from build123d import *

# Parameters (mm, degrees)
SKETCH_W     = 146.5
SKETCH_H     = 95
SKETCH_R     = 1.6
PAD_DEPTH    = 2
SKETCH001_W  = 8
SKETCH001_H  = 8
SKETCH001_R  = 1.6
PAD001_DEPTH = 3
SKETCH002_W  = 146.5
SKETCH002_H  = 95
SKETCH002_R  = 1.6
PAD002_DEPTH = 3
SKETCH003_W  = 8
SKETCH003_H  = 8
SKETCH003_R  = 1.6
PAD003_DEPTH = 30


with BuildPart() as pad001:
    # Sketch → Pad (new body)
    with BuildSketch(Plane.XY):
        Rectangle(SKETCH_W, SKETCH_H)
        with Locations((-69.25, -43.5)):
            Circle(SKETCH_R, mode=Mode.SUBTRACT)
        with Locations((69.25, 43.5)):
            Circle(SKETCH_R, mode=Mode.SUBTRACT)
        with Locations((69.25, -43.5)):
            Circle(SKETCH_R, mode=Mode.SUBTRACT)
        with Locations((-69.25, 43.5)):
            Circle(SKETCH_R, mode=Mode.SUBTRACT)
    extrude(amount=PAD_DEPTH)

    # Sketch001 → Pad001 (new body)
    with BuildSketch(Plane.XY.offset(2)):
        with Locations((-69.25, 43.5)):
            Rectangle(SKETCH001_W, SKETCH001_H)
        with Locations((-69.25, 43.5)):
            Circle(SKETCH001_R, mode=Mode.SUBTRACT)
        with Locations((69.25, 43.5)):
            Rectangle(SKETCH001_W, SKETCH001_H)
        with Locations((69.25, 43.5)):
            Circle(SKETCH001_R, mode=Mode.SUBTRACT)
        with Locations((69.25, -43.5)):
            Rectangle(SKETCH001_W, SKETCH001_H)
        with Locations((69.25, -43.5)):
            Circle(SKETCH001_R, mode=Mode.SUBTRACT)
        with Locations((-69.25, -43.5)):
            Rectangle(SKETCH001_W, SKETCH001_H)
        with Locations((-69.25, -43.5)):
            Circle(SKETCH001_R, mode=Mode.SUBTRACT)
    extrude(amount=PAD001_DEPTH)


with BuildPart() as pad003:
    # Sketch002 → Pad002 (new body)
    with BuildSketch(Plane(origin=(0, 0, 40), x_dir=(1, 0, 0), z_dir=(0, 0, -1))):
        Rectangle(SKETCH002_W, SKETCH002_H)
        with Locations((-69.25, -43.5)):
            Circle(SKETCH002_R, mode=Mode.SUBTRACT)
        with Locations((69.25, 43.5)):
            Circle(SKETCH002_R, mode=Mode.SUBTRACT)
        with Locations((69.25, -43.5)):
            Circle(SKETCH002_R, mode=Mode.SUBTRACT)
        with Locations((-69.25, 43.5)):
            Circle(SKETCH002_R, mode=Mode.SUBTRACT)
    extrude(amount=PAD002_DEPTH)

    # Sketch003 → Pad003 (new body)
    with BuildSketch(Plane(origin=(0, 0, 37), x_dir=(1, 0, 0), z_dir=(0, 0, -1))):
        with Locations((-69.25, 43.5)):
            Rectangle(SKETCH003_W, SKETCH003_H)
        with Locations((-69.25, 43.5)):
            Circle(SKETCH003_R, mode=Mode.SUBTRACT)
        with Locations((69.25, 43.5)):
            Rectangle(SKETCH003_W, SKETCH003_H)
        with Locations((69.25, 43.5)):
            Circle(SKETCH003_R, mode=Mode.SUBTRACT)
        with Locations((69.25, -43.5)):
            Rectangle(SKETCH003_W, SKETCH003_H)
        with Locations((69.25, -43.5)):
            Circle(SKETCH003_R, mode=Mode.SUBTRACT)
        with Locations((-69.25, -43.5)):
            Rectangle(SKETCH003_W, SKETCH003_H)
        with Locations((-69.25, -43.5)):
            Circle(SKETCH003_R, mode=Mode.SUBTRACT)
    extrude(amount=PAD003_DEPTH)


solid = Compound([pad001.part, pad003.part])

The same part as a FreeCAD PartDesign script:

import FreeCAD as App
import Part
import Sketcher

V = App.Vector
Q = App.Units.Quantity

doc = App.newDocument("Part")
body = doc.addObject("PartDesign::Body", "Body")

# Sketch on XY plane
sketch1 = body.newObject("Sketcher::SketchObject", "Sketch")
sketch1.AttachmentSupport = (doc.getObject("XY_Plane"), [""])
sketch1.MapMode = "FlatFace"
sketch1.addGeometry(Part.LineSegment(V(-73.25, 47.5, 0), V(-73.25, -47.5, 0)), False)
sketch1.addGeometry(Part.LineSegment(V(-73.25, -47.5, 0), V(73.25, -47.5, 0)), False)
sketch1.addGeometry(Part.LineSegment(V(73.25, -47.5, 0), V(73.25, 47.5, 0)), False)
sketch1.addGeometry(Part.LineSegment(V(73.25, 47.5, 0), V(-73.25, 47.5, 0)), False)
sketch1.addGeometry(Part.Circle(V(-69.25, -43.5, 0), V(0, 0, 1), 1.6), False)
sketch1.addGeometry(Part.Circle(V(69.25, -43.5, 0), V(0, 0, 1), 1.6), False)
sketch1.addGeometry(Part.Circle(V(-69.25, 43.5, 0), V(0, 0, 1), 1.6), False)
sketch1.addGeometry(Part.Circle(V(69.25, 43.5, 0), V(0, 0, 1), 1.6), False)
sketch1.addConstraint(Sketcher.Constraint("Coincident", 0, 2, 1, 1))
sketch1.addConstraint(Sketcher.Constraint("Coincident", 1, 2, 2, 1))
sketch1.addConstraint(Sketcher.Constraint("Coincident", 2, 2, 3, 1))
sketch1.addConstraint(Sketcher.Constraint("Coincident", 3, 2, 0, 1))
sketch1.addConstraint(Sketcher.Constraint("Vertical", 0))
sketch1.addConstraint(Sketcher.Constraint("Horizontal", 1))
sketch1.addConstraint(Sketcher.Constraint("Vertical", 2))
sketch1.addConstraint(Sketcher.Constraint("Horizontal", 3))
sketch1.addConstraint(Sketcher.Constraint("Equal", 4, 5))
sketch1.addConstraint(Sketcher.Constraint("Equal", 5, 6))
sketch1.addConstraint(Sketcher.Constraint("Equal", 6, 7))
sketch1.addConstraint(Sketcher.Constraint("Symmetric", 5, 3, 6, 3, -1, 1))
sketch1.addConstraint(Sketcher.Constraint("Symmetric", 4, 3, 7, 3, -1, 1))
sketch1.addConstraint(Sketcher.Constraint("Symmetric", 0, 2, 2, 2, -1, 1))
sketch1.addConstraint(Sketcher.Constraint("Symmetric", 4, 3, 5, 3, -2))
sketch1.addConstraint(Sketcher.Constraint("Diameter", 4, Q("3.2 mm")))
sketch1.addConstraint(Sketcher.Constraint("DistanceY", 0, 2, 0, 1, Q("95 mm")))
sketch1.addConstraint(Sketcher.Constraint("DistanceX", 1, 1, 1, 2, Q("146.5 mm")))
sketch1.addConstraint(Sketcher.Constraint("DistanceY", 4, 3, 6, 3, Q("87 mm")))
sketch1.addConstraint(Sketcher.Constraint("DistanceX", 0, 2, 4, 3, Q("4 mm")))
pad1 = body.newObject("PartDesign::Pad", "Pad")
pad1.Profile = sketch1
pad1.Length = 2

# Sketch on XY plane
sketch2 = body.newObject("Sketcher::SketchObject", "Sketch001")
sketch2.AttachmentSupport = (doc.getObject("XY_Plane"), [""])
sketch2.MapMode = "FlatFace"
sketch2.AttachmentOffset = App.Placement(V(0, 0, 2), App.Rotation())
sketch2.addGeometry(Part.LineSegment(V(-73.25, 47.5, 0), V(-73.25, 39.5, 0)), False)
sketch2.addGeometry(Part.LineSegment(V(-73.25, 39.5, 0), V(-65.25, 39.5, 0)), False)
sketch2.addGeometry(Part.LineSegment(V(-65.25, 39.5, 0), V(-65.25, 47.5, 0)), False)
sketch2.addGeometry(Part.LineSegment(V(-65.25, 47.5, 0), V(-73.25, 47.5, 0)), False)
sketch2.addGeometry(Part.Circle(V(-69.25, 43.5, 0), V(0, 0, 1), 1.6), False)
sketch2.addGeometry(Part.LineSegment(V(65.25, 47.5, 0), V(65.25, 39.5, 0)), False)
sketch2.addGeometry(Part.LineSegment(V(65.25, 39.5, 0), V(73.25, 39.5, 0)), False)
sketch2.addGeometry(Part.LineSegment(V(73.25, 39.5, 0), V(73.25, 47.5, 0)), False)
sketch2.addGeometry(Part.LineSegment(V(73.25, 47.5, 0), V(65.25, 47.5, 0)), False)
sketch2.addGeometry(Part.Circle(V(69.25, 43.5, 0), V(0, 0, 1), 1.6), False)
sketch2.addGeometry(Part.LineSegment(V(65.25, -39.5, 0), V(65.25, -47.5, 0)), False)
sketch2.addGeometry(Part.LineSegment(V(65.25, -47.5, 0), V(73.25, -47.5, 0)), False)
sketch2.addGeometry(Part.LineSegment(V(73.25, -47.5, 0), V(73.25, -39.5, 0)), False)
sketch2.addGeometry(Part.LineSegment(V(73.25, -39.5, 0), V(65.25, -39.5, 0)), False)
sketch2.addGeometry(Part.Circle(V(69.25, -43.5, 0), V(0, 0, 1), 1.6), False)
sketch2.addGeometry(Part.LineSegment(V(-73.25, -39.5, 0), V(-73.25, -47.5, 0)), False)
sketch2.addGeometry(Part.LineSegment(V(-73.25, -47.5, 0), V(-65.25, -47.5, 0)), False)
sketch2.addGeometry(Part.LineSegment(V(-65.25, -47.5, 0), V(-65.25, -39.5, 0)), False)
sketch2.addGeometry(Part.LineSegment(V(-65.25, -39.5, 0), V(-73.25, -39.5, 0)), False)
sketch2.addGeometry(Part.Circle(V(-69.25, -43.5, 0), V(0, 0, 1), 1.6), False)
sketch2.addConstraint(Sketcher.Constraint("Coincident", 0, 2, 1, 1))
sketch2.addConstraint(Sketcher.Constraint("Coincident", 1, 2, 2, 1))
sketch2.addConstraint(Sketcher.Constraint("Coincident", 2, 2, 3, 1))
sketch2.addConstraint(Sketcher.Constraint("Coincident", 3, 2, 0, 1))
sketch2.addConstraint(Sketcher.Constraint("Coincident", 5, 2, 6, 1))
sketch2.addConstraint(Sketcher.Constraint("Coincident", 6, 2, 7, 1))
sketch2.addConstraint(Sketcher.Constraint("Coincident", 7, 2, 8, 1))
sketch2.addConstraint(Sketcher.Constraint("Coincident", 8, 2, 5, 1))
sketch2.addConstraint(Sketcher.Constraint("Coincident", 10, 2, 11, 1))
sketch2.addConstraint(Sketcher.Constraint("Coincident", 11, 2, 12, 1))
sketch2.addConstraint(Sketcher.Constraint("Coincident", 12, 2, 13, 1))
sketch2.addConstraint(Sketcher.Constraint("Coincident", 13, 2, 10, 1))
sketch2.addConstraint(Sketcher.Constraint("Coincident", 15, 2, 16, 1))
sketch2.addConstraint(Sketcher.Constraint("Coincident", 16, 2, 17, 1))
sketch2.addConstraint(Sketcher.Constraint("Coincident", 17, 2, 18, 1))
sketch2.addConstraint(Sketcher.Constraint("Coincident", 18, 2, 15, 1))
sketch2.addConstraint(Sketcher.Constraint("Vertical", 0))
sketch2.addConstraint(Sketcher.Constraint("Horizontal", 1))
sketch2.addConstraint(Sketcher.Constraint("Vertical", 2))
sketch2.addConstraint(Sketcher.Constraint("Horizontal", 3))
sketch2.addConstraint(Sketcher.Constraint("Vertical", 5))
sketch2.addConstraint(Sketcher.Constraint("Horizontal", 6))
sketch2.addConstraint(Sketcher.Constraint("Vertical", 7))
sketch2.addConstraint(Sketcher.Constraint("Horizontal", 8))
sketch2.addConstraint(Sketcher.Constraint("Vertical", 10))
sketch2.addConstraint(Sketcher.Constraint("Horizontal", 11))
sketch2.addConstraint(Sketcher.Constraint("Vertical", 12))
sketch2.addConstraint(Sketcher.Constraint("Horizontal", 13))
sketch2.addConstraint(Sketcher.Constraint("Vertical", 15))
sketch2.addConstraint(Sketcher.Constraint("Horizontal", 16))
sketch2.addConstraint(Sketcher.Constraint("Vertical", 17))
sketch2.addConstraint(Sketcher.Constraint("Horizontal", 18))
sketch2.addConstraint(Sketcher.Constraint("Equal", 4, 9))
sketch2.addConstraint(Sketcher.Constraint("Equal", 9, 14))
sketch2.addConstraint(Sketcher.Constraint("Equal", 14, 19))
sketch2.addConstraint(Sketcher.Constraint("Symmetric", 4, 3, 14, 3, -1, 1))
sketch2.addConstraint(Sketcher.Constraint("Symmetric", 9, 3, 19, 3, -1, 1))
sketch2.addConstraint(Sketcher.Constraint("Symmetric", 2, 2, 10, 2, -1, 1))
sketch2.addConstraint(Sketcher.Constraint("Symmetric", 0, 2, 12, 2, -1, 1))
sketch2.addConstraint(Sketcher.Constraint("Symmetric", 7, 2, 15, 2, -1, 1))
sketch2.addConstraint(Sketcher.Constraint("Symmetric", 5, 2, 17, 2, -1, 1))
sketch2.addConstraint(Sketcher.Constraint("Symmetric", 4, 3, 9, 3, -2))
sketch2.addConstraint(Sketcher.Constraint("Symmetric", 1, 2, 5, 2, -2))
sketch2.addConstraint(Sketcher.Constraint("Symmetric", 3, 2, 7, 2, -2))
sketch2.addConstraint(Sketcher.Constraint("Equal", 18, 0))
sketch2.addConstraint(Sketcher.Constraint("Diameter", 4, Q("3.2 mm")))
sketch2.addConstraint(Sketcher.Constraint("DistanceX", 1, 1, 1, 2, Q("8 mm")))
sketch2.addConstraint(Sketcher.Constraint("DistanceY", 14, 3, 9, 3, Q("87 mm")))
sketch2.addConstraint(Sketcher.Constraint("DistanceX", 0, 2, 4, 3, Q("4 mm")))
sketch2.addConstraint(Sketcher.Constraint("DistanceY", 0, 2, 4, 3, Q("4 mm")))
sketch2.addConstraint(Sketcher.Constraint("DistanceX", 4, 3, 9, 3, Q("138.5 mm")))
pad2 = body.newObject("PartDesign::Pad", "Pad001")
pad2.Profile = sketch2
pad2.Length = 3
body2 = doc.addObject("PartDesign::Body", "Body001")

# Sketch on XY plane
sketch3 = body2.newObject("Sketcher::SketchObject", "Sketch002")
sketch3.AttachmentSupport = (doc.getObject("XY_Plane001"), [""])
sketch3.MapMode = "FlatFace"
sketch3.AttachmentOffset = App.Placement(V(0, 0, 40), App.Rotation())
sketch3.addGeometry(Part.LineSegment(V(-73.25, -47.5, 0), V(-73.25, 47.5, 0)), False)
sketch3.addGeometry(Part.LineSegment(V(-73.25, 47.5, 0), V(73.25, 47.5, 0)), False)
sketch3.addGeometry(Part.LineSegment(V(73.25, 47.5, 0), V(73.25, -47.5, 0)), False)
sketch3.addGeometry(Part.LineSegment(V(73.25, -47.5, 0), V(-73.25, -47.5, 0)), False)
sketch3.addGeometry(Part.Circle(V(-69.25, 43.5, 0), V(0, 0, 1), 1.6), False)
sketch3.addGeometry(Part.Circle(V(69.25, 43.5, 0), V(0, 0, 1), 1.6), False)
sketch3.addGeometry(Part.Circle(V(-69.25, -43.5, 0), V(0, 0, 1), 1.6), False)
sketch3.addGeometry(Part.Circle(V(69.25, -43.5, 0), V(0, 0, 1), 1.6), False)
sketch3.addConstraint(Sketcher.Constraint("Coincident", 0, 2, 1, 1))
sketch3.addConstraint(Sketcher.Constraint("Coincident", 1, 2, 2, 1))
sketch3.addConstraint(Sketcher.Constraint("Coincident", 2, 2, 3, 1))
sketch3.addConstraint(Sketcher.Constraint("Coincident", 3, 2, 0, 1))
sketch3.addConstraint(Sketcher.Constraint("Vertical", 0))
sketch3.addConstraint(Sketcher.Constraint("Horizontal", 1))
sketch3.addConstraint(Sketcher.Constraint("Vertical", 2))
sketch3.addConstraint(Sketcher.Constraint("Horizontal", 3))
sketch3.addConstraint(Sketcher.Constraint("Equal", 4, 5))
sketch3.addConstraint(Sketcher.Constraint("Equal", 5, 6))
sketch3.addConstraint(Sketcher.Constraint("Equal", 6, 7))
sketch3.addConstraint(Sketcher.Constraint("Symmetric", 5, 3, 6, 3, -1, 1))
sketch3.addConstraint(Sketcher.Constraint("Symmetric", 4, 3, 7, 3, -1, 1))
sketch3.addConstraint(Sketcher.Constraint("Symmetric", 0, 2, 2, 2, -1, 1))
sketch3.addConstraint(Sketcher.Constraint("Symmetric", 4, 3, 5, 3, -2))
sketch3.addConstraint(Sketcher.Constraint("Diameter", 4, Q("3.2 mm")))
sketch3.addConstraint(Sketcher.Constraint("DistanceY", 0, 1, 0, 2, Q("95 mm")))
sketch3.addConstraint(Sketcher.Constraint("DistanceX", 1, 1, 1, 2, Q("146.5 mm")))
sketch3.addConstraint(Sketcher.Constraint("DistanceY", 6, 3, 4, 3, Q("87 mm")))
sketch3.addConstraint(Sketcher.Constraint("DistanceX", 0, 2, 4, 3, Q("4 mm")))
pad3 = body2.newObject("PartDesign::Pad", "Pad002")
pad3.Profile = sketch3
pad3.Length = 3
pad3.Reversed = True

# Sketch on XY plane
sketch4 = body2.newObject("Sketcher::SketchObject", "Sketch003")
sketch4.AttachmentSupport = (doc.getObject("XY_Plane001"), [""])
sketch4.MapMode = "FlatFace"
sketch4.AttachmentOffset = App.Placement(V(0, 0, 37), App.Rotation())
sketch4.addGeometry(Part.LineSegment(V(-73.25, -47.5, 0), V(-73.25, -39.5, 0)), False)
sketch4.addGeometry(Part.LineSegment(V(-73.25, -39.5, 0), V(-65.25, -39.5, 0)), False)
sketch4.addGeometry(Part.LineSegment(V(-65.25, -39.5, 0), V(-65.25, -47.5, 0)), False)
sketch4.addGeometry(Part.LineSegment(V(-65.25, -47.5, 0), V(-73.25, -47.5, 0)), False)
sketch4.addGeometry(Part.Circle(V(-69.25, -43.5, 0), V(0, 0, 1), 1.6), False)
sketch4.addGeometry(Part.LineSegment(V(65.25, -47.5, 0), V(65.25, -39.5, 0)), False)
sketch4.addGeometry(Part.LineSegment(V(65.25, -39.5, 0), V(73.25, -39.5, 0)), False)
sketch4.addGeometry(Part.LineSegment(V(73.25, -39.5, 0), V(73.25, -47.5, 0)), False)
sketch4.addGeometry(Part.LineSegment(V(73.25, -47.5, 0), V(65.25, -47.5, 0)), False)
sketch4.addGeometry(Part.Circle(V(69.25, -43.5, 0), V(0, 0, 1), 1.6), False)
sketch4.addGeometry(Part.LineSegment(V(65.25, 39.5, 0), V(65.25, 47.5, 0)), False)
sketch4.addGeometry(Part.LineSegment(V(65.25, 47.5, 0), V(73.25, 47.5, 0)), False)
sketch4.addGeometry(Part.LineSegment(V(73.25, 47.5, 0), V(73.25, 39.5, 0)), False)
sketch4.addGeometry(Part.LineSegment(V(73.25, 39.5, 0), V(65.25, 39.5, 0)), False)
sketch4.addGeometry(Part.Circle(V(69.25, 43.5, 0), V(0, 0, 1), 1.6), False)
sketch4.addGeometry(Part.LineSegment(V(-73.25, 39.5, 0), V(-73.25, 47.5, 0)), False)
sketch4.addGeometry(Part.LineSegment(V(-73.25, 47.5, 0), V(-65.25, 47.5, 0)), False)
sketch4.addGeometry(Part.LineSegment(V(-65.25, 47.5, 0), V(-65.25, 39.5, 0)), False)
sketch4.addGeometry(Part.LineSegment(V(-65.25, 39.5, 0), V(-73.25, 39.5, 0)), False)
sketch4.addGeometry(Part.Circle(V(-69.25, 43.5, 0), V(0, 0, 1), 1.6), False)
sketch4.addConstraint(Sketcher.Constraint("Coincident", 0, 2, 1, 1))
sketch4.addConstraint(Sketcher.Constraint("Coincident", 1, 2, 2, 1))
sketch4.addConstraint(Sketcher.Constraint("Coincident", 2, 2, 3, 1))
sketch4.addConstraint(Sketcher.Constraint("Coincident", 3, 2, 0, 1))
sketch4.addConstraint(Sketcher.Constraint("Coincident", 5, 2, 6, 1))
sketch4.addConstraint(Sketcher.Constraint("Coincident", 6, 2, 7, 1))
sketch4.addConstraint(Sketcher.Constraint("Coincident", 7, 2, 8, 1))
sketch4.addConstraint(Sketcher.Constraint("Coincident", 8, 2, 5, 1))
sketch4.addConstraint(Sketcher.Constraint("Coincident", 10, 2, 11, 1))
sketch4.addConstraint(Sketcher.Constraint("Coincident", 11, 2, 12, 1))
sketch4.addConstraint(Sketcher.Constraint("Coincident", 12, 2, 13, 1))
sketch4.addConstraint(Sketcher.Constraint("Coincident", 13, 2, 10, 1))
sketch4.addConstraint(Sketcher.Constraint("Coincident", 15, 2, 16, 1))
sketch4.addConstraint(Sketcher.Constraint("Coincident", 16, 2, 17, 1))
sketch4.addConstraint(Sketcher.Constraint("Coincident", 17, 2, 18, 1))
sketch4.addConstraint(Sketcher.Constraint("Coincident", 18, 2, 15, 1))
sketch4.addConstraint(Sketcher.Constraint("Vertical", 0))
sketch4.addConstraint(Sketcher.Constraint("Horizontal", 1))
sketch4.addConstraint(Sketcher.Constraint("Vertical", 2))
sketch4.addConstraint(Sketcher.Constraint("Horizontal", 3))
sketch4.addConstraint(Sketcher.Constraint("Vertical", 5))
sketch4.addConstraint(Sketcher.Constraint("Horizontal", 6))
sketch4.addConstraint(Sketcher.Constraint("Vertical", 7))
sketch4.addConstraint(Sketcher.Constraint("Horizontal", 8))
sketch4.addConstraint(Sketcher.Constraint("Vertical", 10))
sketch4.addConstraint(Sketcher.Constraint("Horizontal", 11))
sketch4.addConstraint(Sketcher.Constraint("Vertical", 12))
sketch4.addConstraint(Sketcher.Constraint("Horizontal", 13))
sketch4.addConstraint(Sketcher.Constraint("Vertical", 15))
sketch4.addConstraint(Sketcher.Constraint("Horizontal", 16))
sketch4.addConstraint(Sketcher.Constraint("Vertical", 17))
sketch4.addConstraint(Sketcher.Constraint("Horizontal", 18))
sketch4.addConstraint(Sketcher.Constraint("Equal", 4, 9))
sketch4.addConstraint(Sketcher.Constraint("Equal", 9, 14))
sketch4.addConstraint(Sketcher.Constraint("Equal", 14, 19))
sketch4.addConstraint(Sketcher.Constraint("Symmetric", 4, 3, 14, 3, -1, 1))
sketch4.addConstraint(Sketcher.Constraint("Symmetric", 9, 3, 19, 3, -1, 1))
sketch4.addConstraint(Sketcher.Constraint("Symmetric", 2, 2, 10, 2, -1, 1))
sketch4.addConstraint(Sketcher.Constraint("Symmetric", 0, 2, 12, 2, -1, 1))
sketch4.addConstraint(Sketcher.Constraint("Symmetric", 7, 2, 15, 2, -1, 1))
sketch4.addConstraint(Sketcher.Constraint("Symmetric", 5, 2, 17, 2, -1, 1))
sketch4.addConstraint(Sketcher.Constraint("Symmetric", 4, 3, 9, 3, -2))
sketch4.addConstraint(Sketcher.Constraint("Symmetric", 1, 2, 5, 2, -2))
sketch4.addConstraint(Sketcher.Constraint("Symmetric", 3, 2, 7, 2, -2))
sketch4.addConstraint(Sketcher.Constraint("Equal", 18, 0))
sketch4.addConstraint(Sketcher.Constraint("Diameter", 4, Q("3.2 mm")))
sketch4.addConstraint(Sketcher.Constraint("DistanceX", 1, 1, 1, 2, Q("8 mm")))
sketch4.addConstraint(Sketcher.Constraint("DistanceY", 9, 3, 14, 3, Q("87 mm")))
sketch4.addConstraint(Sketcher.Constraint("DistanceX", 0, 2, 4, 3, Q("4 mm")))
sketch4.addConstraint(Sketcher.Constraint("DistanceY", 4, 3, 0, 2, Q("4 mm")))
sketch4.addConstraint(Sketcher.Constraint("DistanceX", 4, 3, 9, 3, Q("138.5 mm")))
pad4 = body2.newObject("PartDesign::Pad", "Pad003")
pad4.Profile = sketch4
pad4.Length = 30
pad4.Reversed = True

doc.recompute()
